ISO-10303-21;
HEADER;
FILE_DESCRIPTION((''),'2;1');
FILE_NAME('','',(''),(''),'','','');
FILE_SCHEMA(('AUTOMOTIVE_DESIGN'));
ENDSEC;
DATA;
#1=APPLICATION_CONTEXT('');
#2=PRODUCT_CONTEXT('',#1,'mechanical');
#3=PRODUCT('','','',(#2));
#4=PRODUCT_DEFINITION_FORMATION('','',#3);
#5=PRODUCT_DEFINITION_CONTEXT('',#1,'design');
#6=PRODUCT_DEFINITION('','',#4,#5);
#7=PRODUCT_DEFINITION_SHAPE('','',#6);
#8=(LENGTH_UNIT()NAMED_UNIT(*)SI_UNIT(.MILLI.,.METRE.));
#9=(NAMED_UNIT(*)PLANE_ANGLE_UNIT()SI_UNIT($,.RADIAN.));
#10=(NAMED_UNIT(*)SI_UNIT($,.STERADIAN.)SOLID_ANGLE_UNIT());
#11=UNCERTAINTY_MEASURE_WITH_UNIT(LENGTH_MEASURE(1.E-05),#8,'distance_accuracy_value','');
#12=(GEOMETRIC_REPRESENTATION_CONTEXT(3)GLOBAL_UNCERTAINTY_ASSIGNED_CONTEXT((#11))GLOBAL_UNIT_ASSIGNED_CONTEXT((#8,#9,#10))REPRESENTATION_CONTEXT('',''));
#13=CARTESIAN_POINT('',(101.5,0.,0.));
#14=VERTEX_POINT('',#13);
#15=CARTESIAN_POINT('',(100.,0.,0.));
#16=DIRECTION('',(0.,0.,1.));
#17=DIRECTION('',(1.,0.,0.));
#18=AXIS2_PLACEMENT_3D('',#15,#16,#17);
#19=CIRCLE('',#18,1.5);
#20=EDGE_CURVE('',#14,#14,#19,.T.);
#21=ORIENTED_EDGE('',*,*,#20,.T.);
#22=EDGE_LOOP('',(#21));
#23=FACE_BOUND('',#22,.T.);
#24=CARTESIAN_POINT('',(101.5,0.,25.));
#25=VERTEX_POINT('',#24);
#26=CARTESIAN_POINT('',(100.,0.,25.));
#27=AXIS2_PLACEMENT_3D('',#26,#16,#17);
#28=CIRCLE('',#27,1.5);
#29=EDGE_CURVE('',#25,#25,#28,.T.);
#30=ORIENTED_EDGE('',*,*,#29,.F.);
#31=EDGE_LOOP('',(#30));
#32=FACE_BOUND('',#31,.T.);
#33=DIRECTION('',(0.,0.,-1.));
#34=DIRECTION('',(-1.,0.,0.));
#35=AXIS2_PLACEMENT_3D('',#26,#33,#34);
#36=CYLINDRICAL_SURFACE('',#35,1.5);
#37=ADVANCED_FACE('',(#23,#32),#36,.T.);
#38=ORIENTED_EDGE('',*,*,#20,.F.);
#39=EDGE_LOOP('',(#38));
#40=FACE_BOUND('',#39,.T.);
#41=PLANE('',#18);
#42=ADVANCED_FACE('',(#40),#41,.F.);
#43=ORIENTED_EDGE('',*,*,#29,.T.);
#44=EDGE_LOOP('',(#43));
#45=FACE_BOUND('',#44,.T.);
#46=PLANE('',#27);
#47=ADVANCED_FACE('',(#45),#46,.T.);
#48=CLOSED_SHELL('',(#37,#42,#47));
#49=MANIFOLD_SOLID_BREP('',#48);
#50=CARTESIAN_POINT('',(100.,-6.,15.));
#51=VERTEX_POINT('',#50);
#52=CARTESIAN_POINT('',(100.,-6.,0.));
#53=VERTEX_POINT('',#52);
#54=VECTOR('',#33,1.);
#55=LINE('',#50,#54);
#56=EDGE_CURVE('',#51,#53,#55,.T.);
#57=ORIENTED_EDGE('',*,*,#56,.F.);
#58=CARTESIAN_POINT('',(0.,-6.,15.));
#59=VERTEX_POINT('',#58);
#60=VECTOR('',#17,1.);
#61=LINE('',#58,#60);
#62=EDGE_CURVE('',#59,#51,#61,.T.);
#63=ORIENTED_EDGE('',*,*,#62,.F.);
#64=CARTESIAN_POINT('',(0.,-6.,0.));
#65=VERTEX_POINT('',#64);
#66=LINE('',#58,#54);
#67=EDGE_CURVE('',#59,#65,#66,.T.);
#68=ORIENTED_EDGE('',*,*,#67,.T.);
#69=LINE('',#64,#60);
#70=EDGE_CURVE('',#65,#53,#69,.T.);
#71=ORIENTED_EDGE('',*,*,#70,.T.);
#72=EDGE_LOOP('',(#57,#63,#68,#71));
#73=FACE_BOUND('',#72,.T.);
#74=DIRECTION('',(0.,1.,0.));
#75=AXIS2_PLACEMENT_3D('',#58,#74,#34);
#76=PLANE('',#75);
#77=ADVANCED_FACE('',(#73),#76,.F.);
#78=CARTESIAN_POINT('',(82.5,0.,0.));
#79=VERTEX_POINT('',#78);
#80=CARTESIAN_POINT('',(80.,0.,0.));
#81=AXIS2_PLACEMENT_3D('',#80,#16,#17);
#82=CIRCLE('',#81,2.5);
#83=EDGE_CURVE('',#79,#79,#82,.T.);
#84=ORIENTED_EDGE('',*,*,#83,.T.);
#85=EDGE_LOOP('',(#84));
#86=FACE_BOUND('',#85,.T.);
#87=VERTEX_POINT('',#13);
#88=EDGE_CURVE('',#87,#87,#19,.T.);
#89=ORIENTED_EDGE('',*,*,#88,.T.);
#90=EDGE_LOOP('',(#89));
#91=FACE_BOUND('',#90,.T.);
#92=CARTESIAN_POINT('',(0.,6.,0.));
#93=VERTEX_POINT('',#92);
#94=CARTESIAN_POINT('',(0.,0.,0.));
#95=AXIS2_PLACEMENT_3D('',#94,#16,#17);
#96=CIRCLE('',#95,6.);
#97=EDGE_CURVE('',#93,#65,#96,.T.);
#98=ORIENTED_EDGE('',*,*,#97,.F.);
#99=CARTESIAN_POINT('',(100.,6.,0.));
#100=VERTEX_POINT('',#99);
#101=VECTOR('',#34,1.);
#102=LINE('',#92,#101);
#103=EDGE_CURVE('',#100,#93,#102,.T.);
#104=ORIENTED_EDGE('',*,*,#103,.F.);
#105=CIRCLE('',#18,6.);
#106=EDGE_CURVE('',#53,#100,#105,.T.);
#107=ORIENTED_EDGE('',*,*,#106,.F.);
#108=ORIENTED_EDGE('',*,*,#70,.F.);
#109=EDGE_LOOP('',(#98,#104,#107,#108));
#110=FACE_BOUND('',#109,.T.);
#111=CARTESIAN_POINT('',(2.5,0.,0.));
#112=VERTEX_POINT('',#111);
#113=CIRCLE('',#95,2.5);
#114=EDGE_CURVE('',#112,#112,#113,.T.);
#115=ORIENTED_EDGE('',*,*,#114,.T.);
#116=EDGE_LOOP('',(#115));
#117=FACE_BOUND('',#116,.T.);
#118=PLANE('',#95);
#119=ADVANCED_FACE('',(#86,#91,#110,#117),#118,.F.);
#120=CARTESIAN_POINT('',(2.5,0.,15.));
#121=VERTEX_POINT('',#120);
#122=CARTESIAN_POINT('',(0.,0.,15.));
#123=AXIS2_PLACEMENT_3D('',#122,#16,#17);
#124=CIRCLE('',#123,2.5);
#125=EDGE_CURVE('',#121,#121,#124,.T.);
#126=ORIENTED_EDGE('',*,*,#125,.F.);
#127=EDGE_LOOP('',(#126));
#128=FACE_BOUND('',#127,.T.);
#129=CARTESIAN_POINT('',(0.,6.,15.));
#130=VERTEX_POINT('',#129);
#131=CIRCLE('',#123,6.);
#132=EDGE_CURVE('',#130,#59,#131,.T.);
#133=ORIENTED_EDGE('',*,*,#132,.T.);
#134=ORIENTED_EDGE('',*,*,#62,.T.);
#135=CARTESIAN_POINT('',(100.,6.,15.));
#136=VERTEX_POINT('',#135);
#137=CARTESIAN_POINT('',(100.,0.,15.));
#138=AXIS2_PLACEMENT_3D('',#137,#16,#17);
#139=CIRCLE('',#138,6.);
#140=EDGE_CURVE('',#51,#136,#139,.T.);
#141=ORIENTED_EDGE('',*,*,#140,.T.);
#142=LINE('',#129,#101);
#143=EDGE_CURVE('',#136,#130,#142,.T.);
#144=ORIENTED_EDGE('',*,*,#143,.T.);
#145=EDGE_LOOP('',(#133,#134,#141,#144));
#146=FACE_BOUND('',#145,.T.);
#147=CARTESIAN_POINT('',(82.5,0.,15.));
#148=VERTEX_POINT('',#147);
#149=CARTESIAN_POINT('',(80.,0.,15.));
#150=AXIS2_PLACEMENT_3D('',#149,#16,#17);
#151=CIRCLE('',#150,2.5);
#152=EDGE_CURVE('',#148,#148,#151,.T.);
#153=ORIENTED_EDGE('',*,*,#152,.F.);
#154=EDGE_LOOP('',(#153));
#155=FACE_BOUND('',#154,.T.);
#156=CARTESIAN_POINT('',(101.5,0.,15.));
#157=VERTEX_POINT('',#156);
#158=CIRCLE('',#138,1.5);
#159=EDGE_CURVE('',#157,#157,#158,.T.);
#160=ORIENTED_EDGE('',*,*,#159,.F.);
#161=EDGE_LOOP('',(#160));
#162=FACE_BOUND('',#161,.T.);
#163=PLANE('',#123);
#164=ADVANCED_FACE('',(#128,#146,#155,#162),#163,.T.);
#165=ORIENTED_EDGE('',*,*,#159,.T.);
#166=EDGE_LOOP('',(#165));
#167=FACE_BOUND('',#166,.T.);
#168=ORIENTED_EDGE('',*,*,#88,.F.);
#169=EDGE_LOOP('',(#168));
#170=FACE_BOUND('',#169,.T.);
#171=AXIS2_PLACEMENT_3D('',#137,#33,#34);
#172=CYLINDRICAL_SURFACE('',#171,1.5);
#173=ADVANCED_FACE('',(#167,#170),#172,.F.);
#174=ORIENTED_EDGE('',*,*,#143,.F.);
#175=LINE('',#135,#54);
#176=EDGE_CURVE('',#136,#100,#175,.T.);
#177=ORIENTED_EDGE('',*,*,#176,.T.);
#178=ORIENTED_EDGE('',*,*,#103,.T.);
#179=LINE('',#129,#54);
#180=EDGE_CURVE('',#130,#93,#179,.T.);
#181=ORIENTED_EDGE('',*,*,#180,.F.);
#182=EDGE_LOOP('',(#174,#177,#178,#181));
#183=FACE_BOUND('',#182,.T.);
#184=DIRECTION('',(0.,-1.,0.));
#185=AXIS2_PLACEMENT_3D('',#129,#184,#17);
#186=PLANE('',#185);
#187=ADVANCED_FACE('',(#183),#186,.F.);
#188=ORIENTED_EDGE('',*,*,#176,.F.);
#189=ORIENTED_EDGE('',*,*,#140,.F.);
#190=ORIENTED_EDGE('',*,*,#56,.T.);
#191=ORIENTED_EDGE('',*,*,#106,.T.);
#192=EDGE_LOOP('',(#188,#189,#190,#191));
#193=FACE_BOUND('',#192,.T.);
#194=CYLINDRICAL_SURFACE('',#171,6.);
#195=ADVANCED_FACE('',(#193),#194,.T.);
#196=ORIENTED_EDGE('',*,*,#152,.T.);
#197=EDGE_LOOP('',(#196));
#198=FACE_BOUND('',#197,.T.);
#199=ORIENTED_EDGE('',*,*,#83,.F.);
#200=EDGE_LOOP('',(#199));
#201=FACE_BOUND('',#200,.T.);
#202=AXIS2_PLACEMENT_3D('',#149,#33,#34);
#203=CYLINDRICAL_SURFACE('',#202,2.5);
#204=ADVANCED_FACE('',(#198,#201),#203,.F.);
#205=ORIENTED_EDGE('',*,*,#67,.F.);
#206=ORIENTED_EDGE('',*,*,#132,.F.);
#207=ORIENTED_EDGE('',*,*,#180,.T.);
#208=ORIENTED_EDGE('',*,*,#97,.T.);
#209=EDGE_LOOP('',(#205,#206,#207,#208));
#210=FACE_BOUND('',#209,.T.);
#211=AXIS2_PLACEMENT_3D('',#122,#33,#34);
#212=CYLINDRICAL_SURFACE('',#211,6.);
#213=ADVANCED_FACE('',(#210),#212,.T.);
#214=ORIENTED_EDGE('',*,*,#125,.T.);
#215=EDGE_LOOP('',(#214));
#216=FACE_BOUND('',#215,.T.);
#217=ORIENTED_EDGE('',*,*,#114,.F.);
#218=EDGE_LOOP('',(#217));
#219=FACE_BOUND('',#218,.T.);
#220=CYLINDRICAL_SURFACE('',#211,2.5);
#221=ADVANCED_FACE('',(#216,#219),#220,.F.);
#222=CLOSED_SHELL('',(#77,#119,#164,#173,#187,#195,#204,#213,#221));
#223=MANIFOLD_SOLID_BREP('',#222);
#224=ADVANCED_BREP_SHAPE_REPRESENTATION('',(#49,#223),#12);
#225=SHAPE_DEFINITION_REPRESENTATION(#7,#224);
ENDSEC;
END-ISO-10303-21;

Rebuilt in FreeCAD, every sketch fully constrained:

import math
import FreeCAD as App
import Part
import Sketcher

V = App.Vector
Q = App.Units.Quantity

doc = App.newDocument("Part")
params = doc.addObject("Spreadsheet::Sheet", "Params")
for row, (alias, value) in enumerate([
    ("sketch1_diameter", "3 mm"),
    ("sketch1_diameter2", "5 mm"),
    ("sketch1_radius", "6 mm"),
    ("sketch1_width", "100 mm"),
    ("pad1_length", "15 mm"),
    ("sketch2_diameter", "3 mm"),
    ("pad2_length", "25 mm"),
], start=1):
    params.set(f"A{row}", alias)
    params.set(f"B{row}", "=" + value)
    params.setAlias(f"B{row}", alias)

body = doc.addObject("PartDesign::Body", "Body")

# Sketch on XY plane
sketch1 = body.newObject("Sketcher::SketchObject", "Sketch")
sketch1.AttachmentSupport = (doc.getObject("XY_Plane"), [""])
sketch1.MapMode = "FlatFace"
sketch1.addGeometry([
    Part.LineSegment(V(100, 6, 0), V(0, 6, 0)),  # 0
    Part.ArcOfCircle(Part.Circle(V(0, 0, 0), V(0, 0, 1), 6), math.radians(90), math.radians(270)),  # 1
    Part.LineSegment(V(0, -6, 0), V(100, -6, 0)),  # 2
    Part.ArcOfCircle(Part.Circle(V(100, 0, 0), V(0, 0, 1), 6), math.radians(-90), math.radians(90)),  # 3
    Part.Circle(V(100, 0, 0), V(0, 0, 1), 1.5),  # 4
    Part.Circle(V(80, 0, 0), V(0, 0, 1), 2.5),  # 5
    Part.Circle(V(0, 0, 0), V(0, 0, 1), 2.5),  # 6
], False)
sketch1.addConstraint([
    Sketcher.Constraint("Tangent", 0, 2, 1, 1),
    Sketcher.Constraint("Tangent", 1, 2, 2, 1),
    Sketcher.Constraint("Tangent", 2, 2, 3, 1),
    Sketcher.Constraint("Tangent", 3, 2, 0, 1),
    Sketcher.Constraint("Horizontal", 0),
    Sketcher.Constraint("Horizontal", 2),
    Sketcher.Constraint("Coincident", 1, 3, -1, 1),
    Sketcher.Constraint("Coincident", 6, 3, -1, 1),
    Sketcher.Constraint("Coincident", 4, 3, 3, 3),
    Sketcher.Constraint("Equal", 5, 6),
    Sketcher.Constraint("PointOnObject", 5, 3, -1),
    Sketcher.Constraint("Diameter", 4, Q("3 mm")),
    Sketcher.Constraint("Diameter", 5, Q("5 mm")),
    Sketcher.Constraint("Radius", 1, Q("6 mm")),
    Sketcher.Constraint("DistanceX", 0, 2, 0, 1, Q("100 mm")),
    Sketcher.Constraint("DistanceX", -1, 1, 5, 3, Q("80 mm")),
])
sketch1.setExpression("Constraints[11]", "Params.sketch1_diameter")
sketch1.setExpression("Constraints[12]", "Params.sketch1_diameter2")
sketch1.setExpression("Constraints[13]", "Params.sketch1_radius")
sketch1.setExpression("Constraints[14]", "Params.sketch1_width")
pad1 = body.newObject("PartDesign::Pad", "Pad")
pad1.Profile = sketch1
pad1.setExpression("Length", "Params.pad1_length")
body2 = doc.addObject("PartDesign::Body", "Body001")

# Sketch on XY plane
sketch2 = body2.newObject("Sketcher::SketchObject", "Sketch001")
sketch2.AttachmentSupport = (doc.getObject("XY_Plane001"), [""])
sketch2.MapMode = "FlatFace"
sketch2.addGeometry(Part.Circle(V(100, 0, 0), V(0, 0, 1), 1.5), False)
sketch2.addConstraint([
    Sketcher.Constraint("PointOnObject", 0, 3, -1),
    Sketcher.Constraint("Diameter", 0, Q("3 mm")),
    Sketcher.Constraint("DistanceX", -1, 1, 0, 3, Q("100 mm")),
])
sketch2.setExpression("Constraints[1]", "Params.sketch2_diameter")
pad2 = body2.newObject("PartDesign::Pad", "Pad001")
pad2.Profile = sketch2
pad2.setExpression("Length", "Params.pad2_length")

doc.recompute()
